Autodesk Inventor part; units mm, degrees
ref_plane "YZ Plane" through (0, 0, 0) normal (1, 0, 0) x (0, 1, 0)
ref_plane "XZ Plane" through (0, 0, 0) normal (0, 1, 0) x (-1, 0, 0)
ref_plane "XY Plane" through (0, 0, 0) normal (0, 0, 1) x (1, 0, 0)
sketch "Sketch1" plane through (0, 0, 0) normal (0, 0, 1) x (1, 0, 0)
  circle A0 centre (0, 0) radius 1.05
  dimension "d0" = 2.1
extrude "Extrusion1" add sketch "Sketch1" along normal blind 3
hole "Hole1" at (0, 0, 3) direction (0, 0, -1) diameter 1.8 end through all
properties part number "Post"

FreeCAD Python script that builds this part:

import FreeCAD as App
import Part
import Sketcher

V = App.Vector

doc = App.newDocument("Part")
body = doc.addObject("PartDesign::Body", "Body")

sketch1 = body.newObject("Sketcher::SketchObject", "Sketch")
sketch1.AttachmentSupport = (doc.getObject("XY_Plane"), [""])
sketch1.MapMode = "FlatFace"
sketch1.addGeometry(Part.Circle(V(0, 0, 0), V(0, 0, 1), 1.1), False)
sketch1.addConstraint([
    Sketcher.Constraint("Coincident", 0, 3, -1, 1),
    Sketcher.Constraint("Diameter", 0, 2.1),
])
pad1 = body.newObject("PartDesign::Pad", "Pad")
pad1.Profile = sketch1
pad1.Length = 3

sketch2 = body.newObject("Sketcher::SketchObject", "Sketch001")
sketch2.AttachmentSupport = (doc.getObject("XY_Plane"), [""])
sketch2.MapMode = "FlatFace"
sketch2.AttachmentOffset = App.Placement(V(0, 0, 3), App.Rotation())
sketch2.addGeometry(Part.Circle(V(0, 0, 0), V(0, 0, 1), 0.9), False)
sketch2.addConstraint([
    Sketcher.Constraint("Coincident", 0, 3, -1, 1),
    Sketcher.Constraint("Diameter", 0, 1.8),
])
doc.recompute()
hole = body.newObject("PartDesign::Hole", "Hole")
hole.Profile = sketch2
hole.ThreadType = "None"
hole.Diameter = 1.8
hole.DepthType = "ThroughAll"

doc.recompute()
